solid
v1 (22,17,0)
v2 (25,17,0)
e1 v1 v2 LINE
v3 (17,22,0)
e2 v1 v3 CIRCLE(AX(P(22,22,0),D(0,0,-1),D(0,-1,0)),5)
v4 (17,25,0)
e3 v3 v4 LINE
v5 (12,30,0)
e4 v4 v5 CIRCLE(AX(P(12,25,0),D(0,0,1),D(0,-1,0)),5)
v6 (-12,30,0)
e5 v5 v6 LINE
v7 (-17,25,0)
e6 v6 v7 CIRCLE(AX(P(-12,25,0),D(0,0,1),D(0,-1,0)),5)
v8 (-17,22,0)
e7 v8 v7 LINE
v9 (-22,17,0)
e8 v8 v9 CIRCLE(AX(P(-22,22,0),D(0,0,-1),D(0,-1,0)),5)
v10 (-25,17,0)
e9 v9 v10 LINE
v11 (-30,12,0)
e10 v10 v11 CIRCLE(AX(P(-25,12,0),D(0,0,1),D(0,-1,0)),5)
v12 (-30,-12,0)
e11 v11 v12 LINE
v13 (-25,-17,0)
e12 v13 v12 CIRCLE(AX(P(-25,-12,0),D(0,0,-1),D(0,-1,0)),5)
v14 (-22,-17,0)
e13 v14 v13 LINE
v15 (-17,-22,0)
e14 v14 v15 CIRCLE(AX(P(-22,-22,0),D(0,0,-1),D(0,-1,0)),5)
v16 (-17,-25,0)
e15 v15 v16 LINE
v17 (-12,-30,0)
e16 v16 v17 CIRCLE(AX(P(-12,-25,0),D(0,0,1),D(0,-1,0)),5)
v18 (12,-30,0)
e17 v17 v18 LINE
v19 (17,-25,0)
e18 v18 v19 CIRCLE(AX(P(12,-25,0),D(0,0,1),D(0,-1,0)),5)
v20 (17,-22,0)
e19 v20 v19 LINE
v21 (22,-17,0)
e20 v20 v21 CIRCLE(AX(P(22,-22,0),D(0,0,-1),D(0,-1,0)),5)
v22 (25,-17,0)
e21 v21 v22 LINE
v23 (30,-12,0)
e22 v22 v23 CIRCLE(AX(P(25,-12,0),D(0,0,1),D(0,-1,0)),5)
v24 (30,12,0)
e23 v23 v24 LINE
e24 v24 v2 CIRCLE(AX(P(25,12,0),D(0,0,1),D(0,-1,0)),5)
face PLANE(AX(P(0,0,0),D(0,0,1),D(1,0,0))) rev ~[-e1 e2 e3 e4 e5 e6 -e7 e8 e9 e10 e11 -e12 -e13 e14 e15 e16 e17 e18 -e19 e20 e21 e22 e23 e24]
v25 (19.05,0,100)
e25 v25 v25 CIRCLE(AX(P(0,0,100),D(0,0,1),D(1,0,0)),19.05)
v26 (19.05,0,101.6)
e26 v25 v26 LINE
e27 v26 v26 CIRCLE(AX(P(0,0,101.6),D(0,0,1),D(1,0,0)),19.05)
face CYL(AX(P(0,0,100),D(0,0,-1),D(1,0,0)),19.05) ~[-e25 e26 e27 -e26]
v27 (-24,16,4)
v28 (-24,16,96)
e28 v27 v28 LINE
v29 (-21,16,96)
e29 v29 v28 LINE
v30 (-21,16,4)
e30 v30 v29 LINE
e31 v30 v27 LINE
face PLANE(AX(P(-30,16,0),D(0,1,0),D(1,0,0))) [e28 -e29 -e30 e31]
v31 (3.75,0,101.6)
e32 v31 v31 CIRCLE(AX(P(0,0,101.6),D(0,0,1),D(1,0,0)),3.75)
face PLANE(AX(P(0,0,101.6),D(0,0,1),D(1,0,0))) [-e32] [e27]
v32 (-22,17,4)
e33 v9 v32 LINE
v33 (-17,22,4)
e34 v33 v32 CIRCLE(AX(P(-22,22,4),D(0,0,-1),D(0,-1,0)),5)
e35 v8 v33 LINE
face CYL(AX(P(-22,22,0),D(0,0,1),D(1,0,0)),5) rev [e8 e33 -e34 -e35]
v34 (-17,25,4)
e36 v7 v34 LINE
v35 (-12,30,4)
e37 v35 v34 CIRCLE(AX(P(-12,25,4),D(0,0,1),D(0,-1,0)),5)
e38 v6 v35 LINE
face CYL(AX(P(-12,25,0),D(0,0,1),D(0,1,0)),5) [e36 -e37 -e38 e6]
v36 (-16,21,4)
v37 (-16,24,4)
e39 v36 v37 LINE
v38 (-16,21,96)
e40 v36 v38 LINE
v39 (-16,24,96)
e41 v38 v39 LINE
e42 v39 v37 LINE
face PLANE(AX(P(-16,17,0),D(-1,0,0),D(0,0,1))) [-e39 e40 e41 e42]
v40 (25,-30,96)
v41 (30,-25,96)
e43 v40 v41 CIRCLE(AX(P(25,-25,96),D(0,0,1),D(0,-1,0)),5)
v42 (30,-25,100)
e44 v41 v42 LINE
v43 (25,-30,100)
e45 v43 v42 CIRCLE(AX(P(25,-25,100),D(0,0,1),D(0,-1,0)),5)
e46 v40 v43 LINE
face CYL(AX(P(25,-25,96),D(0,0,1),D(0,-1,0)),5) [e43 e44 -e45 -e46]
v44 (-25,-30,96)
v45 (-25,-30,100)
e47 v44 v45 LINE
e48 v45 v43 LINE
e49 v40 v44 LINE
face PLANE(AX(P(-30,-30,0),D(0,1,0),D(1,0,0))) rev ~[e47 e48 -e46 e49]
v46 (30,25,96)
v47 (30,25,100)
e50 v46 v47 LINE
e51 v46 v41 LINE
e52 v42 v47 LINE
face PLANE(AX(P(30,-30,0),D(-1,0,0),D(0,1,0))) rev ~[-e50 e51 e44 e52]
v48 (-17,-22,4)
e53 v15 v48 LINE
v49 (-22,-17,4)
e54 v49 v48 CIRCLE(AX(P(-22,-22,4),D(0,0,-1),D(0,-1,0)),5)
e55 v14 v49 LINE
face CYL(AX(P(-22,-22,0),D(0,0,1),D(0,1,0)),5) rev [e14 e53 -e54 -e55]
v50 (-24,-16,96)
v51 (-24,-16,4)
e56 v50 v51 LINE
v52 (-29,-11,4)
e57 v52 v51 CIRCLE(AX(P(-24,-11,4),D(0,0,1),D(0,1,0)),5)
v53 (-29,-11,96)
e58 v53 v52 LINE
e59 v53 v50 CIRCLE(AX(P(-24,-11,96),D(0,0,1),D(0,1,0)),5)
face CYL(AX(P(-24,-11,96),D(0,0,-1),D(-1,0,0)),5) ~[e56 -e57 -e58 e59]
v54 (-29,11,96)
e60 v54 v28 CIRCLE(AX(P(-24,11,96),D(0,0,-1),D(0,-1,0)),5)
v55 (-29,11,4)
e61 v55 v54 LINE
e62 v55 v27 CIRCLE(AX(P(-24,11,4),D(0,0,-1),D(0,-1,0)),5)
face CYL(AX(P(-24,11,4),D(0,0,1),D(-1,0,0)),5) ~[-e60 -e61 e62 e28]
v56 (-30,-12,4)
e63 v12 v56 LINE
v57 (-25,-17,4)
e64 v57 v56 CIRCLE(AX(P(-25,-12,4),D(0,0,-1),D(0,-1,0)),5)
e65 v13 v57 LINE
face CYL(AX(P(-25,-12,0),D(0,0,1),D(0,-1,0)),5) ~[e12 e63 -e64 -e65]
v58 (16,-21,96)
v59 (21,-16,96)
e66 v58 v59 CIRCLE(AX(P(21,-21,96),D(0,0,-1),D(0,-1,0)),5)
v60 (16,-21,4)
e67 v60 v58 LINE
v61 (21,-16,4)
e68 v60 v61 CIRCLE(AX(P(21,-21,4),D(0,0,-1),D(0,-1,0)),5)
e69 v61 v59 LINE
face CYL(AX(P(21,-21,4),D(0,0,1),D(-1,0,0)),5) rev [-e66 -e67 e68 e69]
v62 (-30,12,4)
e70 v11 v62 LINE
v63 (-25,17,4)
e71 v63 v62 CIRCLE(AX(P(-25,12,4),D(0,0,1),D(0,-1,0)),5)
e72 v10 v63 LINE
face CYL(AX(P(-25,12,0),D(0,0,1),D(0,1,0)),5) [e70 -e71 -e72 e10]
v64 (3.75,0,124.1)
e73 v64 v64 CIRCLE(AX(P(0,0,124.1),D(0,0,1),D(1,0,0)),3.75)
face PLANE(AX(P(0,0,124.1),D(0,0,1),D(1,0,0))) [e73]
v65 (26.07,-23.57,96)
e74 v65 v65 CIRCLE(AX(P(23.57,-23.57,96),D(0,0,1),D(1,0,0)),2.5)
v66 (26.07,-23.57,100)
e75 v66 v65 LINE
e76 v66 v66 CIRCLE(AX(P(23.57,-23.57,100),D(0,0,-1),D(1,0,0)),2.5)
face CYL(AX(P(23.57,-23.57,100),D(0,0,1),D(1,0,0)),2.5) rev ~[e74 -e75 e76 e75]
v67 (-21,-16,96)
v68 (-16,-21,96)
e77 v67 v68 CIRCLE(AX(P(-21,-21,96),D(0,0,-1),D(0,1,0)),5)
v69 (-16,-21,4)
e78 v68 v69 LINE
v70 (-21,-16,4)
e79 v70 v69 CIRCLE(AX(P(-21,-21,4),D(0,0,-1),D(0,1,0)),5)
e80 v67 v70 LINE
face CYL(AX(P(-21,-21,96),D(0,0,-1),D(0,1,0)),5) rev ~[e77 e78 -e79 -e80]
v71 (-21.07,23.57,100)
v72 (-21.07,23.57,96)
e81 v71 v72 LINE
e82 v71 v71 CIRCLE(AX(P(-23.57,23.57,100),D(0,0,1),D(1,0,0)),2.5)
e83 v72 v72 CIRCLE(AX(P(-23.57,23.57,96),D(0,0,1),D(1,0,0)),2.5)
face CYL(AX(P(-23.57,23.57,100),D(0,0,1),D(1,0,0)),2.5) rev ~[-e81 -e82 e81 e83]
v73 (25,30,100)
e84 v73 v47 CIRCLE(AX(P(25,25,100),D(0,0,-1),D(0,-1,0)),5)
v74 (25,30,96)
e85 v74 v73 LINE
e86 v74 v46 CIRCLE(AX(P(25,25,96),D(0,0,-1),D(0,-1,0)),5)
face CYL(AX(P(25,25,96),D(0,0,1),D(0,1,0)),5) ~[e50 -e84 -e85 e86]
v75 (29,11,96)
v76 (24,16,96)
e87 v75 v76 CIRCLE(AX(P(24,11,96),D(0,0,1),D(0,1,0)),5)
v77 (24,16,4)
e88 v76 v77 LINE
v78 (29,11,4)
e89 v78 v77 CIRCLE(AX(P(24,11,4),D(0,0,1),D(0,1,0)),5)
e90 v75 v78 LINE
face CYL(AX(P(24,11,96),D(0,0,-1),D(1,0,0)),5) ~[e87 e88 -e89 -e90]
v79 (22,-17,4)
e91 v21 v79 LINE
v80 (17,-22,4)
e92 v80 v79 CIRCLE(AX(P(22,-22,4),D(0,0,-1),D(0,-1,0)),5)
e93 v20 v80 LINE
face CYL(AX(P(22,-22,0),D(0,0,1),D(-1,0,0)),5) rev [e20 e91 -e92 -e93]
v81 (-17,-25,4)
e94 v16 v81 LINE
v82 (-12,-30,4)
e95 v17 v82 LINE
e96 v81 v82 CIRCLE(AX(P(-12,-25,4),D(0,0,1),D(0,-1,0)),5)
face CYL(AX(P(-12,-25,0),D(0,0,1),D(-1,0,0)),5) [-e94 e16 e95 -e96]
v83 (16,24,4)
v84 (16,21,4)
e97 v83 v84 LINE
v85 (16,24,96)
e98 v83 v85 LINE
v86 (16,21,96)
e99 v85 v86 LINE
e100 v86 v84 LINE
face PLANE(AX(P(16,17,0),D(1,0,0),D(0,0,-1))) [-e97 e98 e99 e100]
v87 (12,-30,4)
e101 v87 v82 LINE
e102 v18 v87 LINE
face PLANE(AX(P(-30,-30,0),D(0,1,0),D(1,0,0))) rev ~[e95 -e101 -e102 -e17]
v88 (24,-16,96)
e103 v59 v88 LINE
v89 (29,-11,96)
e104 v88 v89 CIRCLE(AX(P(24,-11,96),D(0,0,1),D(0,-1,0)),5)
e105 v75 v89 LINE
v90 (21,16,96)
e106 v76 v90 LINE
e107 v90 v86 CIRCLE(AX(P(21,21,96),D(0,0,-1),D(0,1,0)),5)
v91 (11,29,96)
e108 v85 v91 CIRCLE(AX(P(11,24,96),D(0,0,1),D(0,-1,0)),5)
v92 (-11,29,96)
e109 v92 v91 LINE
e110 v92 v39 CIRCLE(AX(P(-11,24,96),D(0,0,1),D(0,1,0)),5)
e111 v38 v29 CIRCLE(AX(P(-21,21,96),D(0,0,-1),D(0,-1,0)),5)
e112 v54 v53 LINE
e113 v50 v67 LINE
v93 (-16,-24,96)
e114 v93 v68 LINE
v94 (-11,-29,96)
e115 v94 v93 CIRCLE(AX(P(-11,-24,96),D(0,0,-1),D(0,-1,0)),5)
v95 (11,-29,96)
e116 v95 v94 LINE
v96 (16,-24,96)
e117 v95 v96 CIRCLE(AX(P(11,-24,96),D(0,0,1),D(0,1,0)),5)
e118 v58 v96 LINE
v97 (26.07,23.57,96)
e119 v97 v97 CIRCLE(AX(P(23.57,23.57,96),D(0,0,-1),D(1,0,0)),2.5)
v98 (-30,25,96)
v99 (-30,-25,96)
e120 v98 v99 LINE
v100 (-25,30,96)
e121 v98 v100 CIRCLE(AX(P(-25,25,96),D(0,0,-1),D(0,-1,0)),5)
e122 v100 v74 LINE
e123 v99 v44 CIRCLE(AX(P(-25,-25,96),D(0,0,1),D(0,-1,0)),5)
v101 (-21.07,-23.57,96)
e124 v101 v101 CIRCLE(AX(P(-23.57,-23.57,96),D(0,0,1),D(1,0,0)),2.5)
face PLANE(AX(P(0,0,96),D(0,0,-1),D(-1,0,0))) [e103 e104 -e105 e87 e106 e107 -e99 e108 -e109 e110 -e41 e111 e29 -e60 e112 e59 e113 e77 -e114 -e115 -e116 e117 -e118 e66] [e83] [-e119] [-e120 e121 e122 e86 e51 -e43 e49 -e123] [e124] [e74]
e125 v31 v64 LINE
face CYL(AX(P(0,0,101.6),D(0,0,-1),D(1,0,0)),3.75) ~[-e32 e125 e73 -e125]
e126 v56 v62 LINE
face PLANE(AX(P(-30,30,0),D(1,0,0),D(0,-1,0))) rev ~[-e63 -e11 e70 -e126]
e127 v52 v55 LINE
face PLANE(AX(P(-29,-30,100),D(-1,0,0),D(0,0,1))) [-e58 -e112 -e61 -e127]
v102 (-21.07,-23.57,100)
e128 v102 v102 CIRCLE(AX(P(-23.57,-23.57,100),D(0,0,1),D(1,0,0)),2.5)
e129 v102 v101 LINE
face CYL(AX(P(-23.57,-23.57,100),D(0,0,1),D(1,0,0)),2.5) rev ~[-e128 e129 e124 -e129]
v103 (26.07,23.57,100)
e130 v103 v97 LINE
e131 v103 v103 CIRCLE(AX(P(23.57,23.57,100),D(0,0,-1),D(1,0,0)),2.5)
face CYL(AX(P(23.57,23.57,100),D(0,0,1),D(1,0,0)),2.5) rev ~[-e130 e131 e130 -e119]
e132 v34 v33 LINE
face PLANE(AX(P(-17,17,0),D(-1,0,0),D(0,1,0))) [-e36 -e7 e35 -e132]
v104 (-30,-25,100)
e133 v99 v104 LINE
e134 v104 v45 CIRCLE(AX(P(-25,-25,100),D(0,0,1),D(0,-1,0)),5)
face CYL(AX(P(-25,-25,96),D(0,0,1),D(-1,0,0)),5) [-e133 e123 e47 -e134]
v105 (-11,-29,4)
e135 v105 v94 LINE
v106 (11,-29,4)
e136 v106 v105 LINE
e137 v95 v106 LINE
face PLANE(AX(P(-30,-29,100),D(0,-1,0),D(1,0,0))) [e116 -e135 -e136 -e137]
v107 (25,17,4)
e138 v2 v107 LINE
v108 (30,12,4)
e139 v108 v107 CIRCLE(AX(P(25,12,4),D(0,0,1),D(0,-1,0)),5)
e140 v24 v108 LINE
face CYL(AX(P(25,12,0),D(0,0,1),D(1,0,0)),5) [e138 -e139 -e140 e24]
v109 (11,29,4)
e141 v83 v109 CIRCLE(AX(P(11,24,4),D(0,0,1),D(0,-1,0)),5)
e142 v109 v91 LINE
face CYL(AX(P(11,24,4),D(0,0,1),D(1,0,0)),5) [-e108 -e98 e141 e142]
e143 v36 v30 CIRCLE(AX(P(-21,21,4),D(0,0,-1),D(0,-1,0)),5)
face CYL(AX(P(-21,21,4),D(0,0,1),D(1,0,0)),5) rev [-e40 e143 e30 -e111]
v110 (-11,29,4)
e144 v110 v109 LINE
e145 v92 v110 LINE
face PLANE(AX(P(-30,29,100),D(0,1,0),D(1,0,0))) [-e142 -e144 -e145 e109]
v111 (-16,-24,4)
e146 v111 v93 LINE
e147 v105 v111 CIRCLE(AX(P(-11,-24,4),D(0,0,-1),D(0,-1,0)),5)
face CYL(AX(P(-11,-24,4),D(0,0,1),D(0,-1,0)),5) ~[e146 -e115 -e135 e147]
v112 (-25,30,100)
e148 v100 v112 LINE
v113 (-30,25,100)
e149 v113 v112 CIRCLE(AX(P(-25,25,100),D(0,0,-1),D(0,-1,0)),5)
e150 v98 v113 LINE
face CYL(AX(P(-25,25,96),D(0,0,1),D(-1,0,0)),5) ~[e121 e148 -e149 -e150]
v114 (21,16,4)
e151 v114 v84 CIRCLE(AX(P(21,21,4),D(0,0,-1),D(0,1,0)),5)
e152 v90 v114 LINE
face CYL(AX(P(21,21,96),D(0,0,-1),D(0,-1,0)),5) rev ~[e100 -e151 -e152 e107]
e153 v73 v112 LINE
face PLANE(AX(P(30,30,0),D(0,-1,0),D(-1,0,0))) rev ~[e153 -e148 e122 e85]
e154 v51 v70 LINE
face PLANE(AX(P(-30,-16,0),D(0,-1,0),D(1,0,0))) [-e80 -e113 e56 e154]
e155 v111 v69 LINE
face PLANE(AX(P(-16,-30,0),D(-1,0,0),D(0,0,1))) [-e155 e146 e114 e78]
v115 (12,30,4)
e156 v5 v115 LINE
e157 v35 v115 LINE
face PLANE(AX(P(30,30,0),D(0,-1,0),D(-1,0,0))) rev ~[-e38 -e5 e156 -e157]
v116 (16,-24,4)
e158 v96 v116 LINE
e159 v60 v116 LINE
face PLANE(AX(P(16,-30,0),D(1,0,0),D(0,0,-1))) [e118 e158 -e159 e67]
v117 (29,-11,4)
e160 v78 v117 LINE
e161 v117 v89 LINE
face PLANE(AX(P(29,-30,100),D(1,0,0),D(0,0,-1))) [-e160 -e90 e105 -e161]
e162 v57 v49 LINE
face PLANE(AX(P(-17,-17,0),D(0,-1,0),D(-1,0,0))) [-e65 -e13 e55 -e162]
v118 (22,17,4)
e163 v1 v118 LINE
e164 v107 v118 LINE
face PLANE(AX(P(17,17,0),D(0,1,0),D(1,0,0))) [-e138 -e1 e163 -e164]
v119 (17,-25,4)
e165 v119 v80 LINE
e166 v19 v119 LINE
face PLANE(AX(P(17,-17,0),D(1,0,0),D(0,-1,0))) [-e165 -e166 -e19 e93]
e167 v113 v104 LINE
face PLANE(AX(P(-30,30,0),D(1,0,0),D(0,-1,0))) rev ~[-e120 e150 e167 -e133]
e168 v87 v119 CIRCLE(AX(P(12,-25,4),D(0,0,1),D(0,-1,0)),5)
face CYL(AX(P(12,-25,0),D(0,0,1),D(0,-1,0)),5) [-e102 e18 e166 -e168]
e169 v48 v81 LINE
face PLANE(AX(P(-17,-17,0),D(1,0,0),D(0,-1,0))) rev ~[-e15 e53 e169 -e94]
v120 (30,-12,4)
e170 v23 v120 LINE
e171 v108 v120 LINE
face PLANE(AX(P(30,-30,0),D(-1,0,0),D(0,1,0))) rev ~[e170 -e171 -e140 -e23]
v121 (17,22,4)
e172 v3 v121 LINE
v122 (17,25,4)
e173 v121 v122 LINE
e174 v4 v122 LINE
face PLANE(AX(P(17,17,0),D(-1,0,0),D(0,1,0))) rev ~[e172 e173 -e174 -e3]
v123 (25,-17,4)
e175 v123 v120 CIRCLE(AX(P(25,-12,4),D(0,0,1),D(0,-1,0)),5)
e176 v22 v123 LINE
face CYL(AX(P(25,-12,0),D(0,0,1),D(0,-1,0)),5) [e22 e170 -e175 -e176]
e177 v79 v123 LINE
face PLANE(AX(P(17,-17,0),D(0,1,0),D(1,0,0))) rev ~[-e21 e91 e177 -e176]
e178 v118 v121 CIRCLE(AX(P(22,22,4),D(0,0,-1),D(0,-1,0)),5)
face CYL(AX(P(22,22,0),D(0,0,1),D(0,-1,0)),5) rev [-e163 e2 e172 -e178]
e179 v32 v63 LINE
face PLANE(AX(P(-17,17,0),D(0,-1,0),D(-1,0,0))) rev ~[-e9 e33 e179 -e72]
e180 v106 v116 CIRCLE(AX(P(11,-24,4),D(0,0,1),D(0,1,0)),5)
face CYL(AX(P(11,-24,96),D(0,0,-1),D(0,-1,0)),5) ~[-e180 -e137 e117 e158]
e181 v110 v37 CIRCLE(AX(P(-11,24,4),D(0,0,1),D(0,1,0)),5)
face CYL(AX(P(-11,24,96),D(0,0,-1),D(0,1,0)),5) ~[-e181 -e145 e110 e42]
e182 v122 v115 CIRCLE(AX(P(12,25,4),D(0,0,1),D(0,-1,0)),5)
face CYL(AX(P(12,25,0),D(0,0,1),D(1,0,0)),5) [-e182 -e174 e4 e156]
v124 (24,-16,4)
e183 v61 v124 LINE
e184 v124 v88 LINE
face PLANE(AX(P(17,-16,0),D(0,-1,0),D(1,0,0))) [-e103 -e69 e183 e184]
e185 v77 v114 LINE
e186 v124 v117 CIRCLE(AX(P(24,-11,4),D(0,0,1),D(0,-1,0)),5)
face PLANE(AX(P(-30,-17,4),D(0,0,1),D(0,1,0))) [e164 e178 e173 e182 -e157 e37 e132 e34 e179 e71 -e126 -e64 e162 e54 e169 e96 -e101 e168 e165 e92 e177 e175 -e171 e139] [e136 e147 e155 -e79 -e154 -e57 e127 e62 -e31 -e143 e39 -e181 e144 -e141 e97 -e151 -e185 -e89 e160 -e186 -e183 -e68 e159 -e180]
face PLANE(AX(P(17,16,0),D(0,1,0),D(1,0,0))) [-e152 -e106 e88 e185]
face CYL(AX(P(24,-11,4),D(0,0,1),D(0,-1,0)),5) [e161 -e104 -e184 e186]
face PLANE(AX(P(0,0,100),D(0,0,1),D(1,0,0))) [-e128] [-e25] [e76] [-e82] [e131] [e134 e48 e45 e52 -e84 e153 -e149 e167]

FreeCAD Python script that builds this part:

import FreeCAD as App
import Part
import Sketcher
from FreeCAD import Vector
Q = App.Units.Quantity


def edges_at(feature, points):
    """Names of the edges that pass closest to the given points."""
    edges = feature.Shape.Edges
    near = lambda p: min(range(len(edges)), key=lambda i: edges[i].distToShape(Part.Vertex(*p))[0])
    return sorted({f"Edge{near(p) + 1}" for p in points})

doc = App.newDocument("Part")
body = doc.addObject("PartDesign::Body", "Body")

# Sketch on XY plane
sketch1 = body.newObject("Sketcher::SketchObject", "Sketch")
sketch1.AttachmentSupport = (doc.getObject("XY_Plane"), [""])
sketch1.MapMode = "FlatFace"
sketch1.addGeometry([
    Part.LineSegment(Vector(-30, 30, 0), Vector(-30, -30, 0)),
    Part.LineSegment(Vector(-30, -30, 0), Vector(30, -30, 0)),
    Part.LineSegment(Vector(30, -30, 0), Vector(30, 30, 0)),
    Part.LineSegment(Vector(30, 30, 0), Vector(-30, 30, 0)),
], False)
sketch1.addConstraint([
    Sketcher.Constraint("Coincident", 0, 2, 1, 1),
    Sketcher.Constraint("Coincident", 1, 2, 2, 1),
    Sketcher.Constraint("Coincident", 2, 2, 3, 1),
    Sketcher.Constraint("Coincident", 3, 2, 0, 1),
    Sketcher.Constraint("Vertical", 0),
    Sketcher.Constraint("Horizontal", 1),
    Sketcher.Constraint("Vertical", 2),
    Sketcher.Constraint("Horizontal", 3),
    Sketcher.Constraint("Symmetric", 0, 2, 2, 2, -1, 1),
    Sketcher.Constraint("Equal", 3, 0),
    Sketcher.Constraint("DistanceX", 1, 1, 1, 2, Q("60 mm")),
])
pad1 = body.newObject("PartDesign::Pad", "Pad")
pad1.Profile = sketch1
pad1.Length = 100

# Sketch on XY plane
sketch2 = body.newObject("Sketcher::SketchObject", "Sketch001")
sketch2.AttachmentSupport = (doc.getObject("XY_Plane"), [""])
sketch2.MapMode = "FlatFace"
sketch2.AttachmentOffset = App.Placement(Vector(0, 0, 100), App.Rotation())
sketch2.addGeometry(Part.Circle(Vector(0, 0, 0), Vector(0, 0, 1), 19), False)
sketch2.addConstraint([
    Sketcher.Constraint("Coincident", 0, 3, -1, 1),
    Sketcher.Constraint("Diameter", 0, Q("38.1 mm")),
])
pad2 = body.newObject("PartDesign::Pad", "Pad001")
pad2.Profile = sketch2
pad2.Length = 1.6

# Sketch on XY plane
sketch3 = body.newObject("Sketcher::SketchObject", "Sketch002")
sketch3.AttachmentSupport = (doc.getObject("XY_Plane"), [""])
sketch3.MapMode = "FlatFace"
sketch3.AttachmentOffset = App.Placement(Vector(0, 0, 100), App.Rotation())
sketch3.addGeometry([
    Part.Circle(Vector(-23.6, 23.6, 0), Vector(0, 0, 1), 2.5),
    Part.Circle(Vector(23.6, 23.6, 0), Vector(0, 0, 1), 2.5),
    Part.Circle(Vector(23.6, -23.6, 0), Vector(0, 0, 1), 2.5),
    Part.Circle(Vector(-23.6, -23.6, 0), Vector(0, 0, 1), 2.5),
], False)
sketch3.addConstraint([
    Sketcher.Constraint("Equal", 0, 1),
    Sketcher.Constraint("Equal", 1, 2),
    Sketcher.Constraint("Equal", 2, 3),
    Sketcher.Constraint("Symmetric", 0, 3, 2, 3, -1, 1),
    Sketcher.Constraint("Symmetric", 1, 3, 3, 3, -1, 1),
    Sketcher.Constraint("Symmetric", 0, 3, 1, 3, -2),
    Sketcher.Constraint("Diameter", 0, Q("5 mm")),
    Sketcher.Constraint("DistanceX", 0, 3, 1, 3, Q("47.14 mm")),
    Sketcher.Constraint("DistanceY", 2, 3, 1, 3, Q("47.14 mm")),
])
pocket1 = body.newObject("PartDesign::Pocket", "Pocket")
pocket1.Profile = sketch3
pocket1.Type = "UpToFirst"

# Sketch on XY plane
sketch4 = body.newObject("Sketcher::SketchObject", "Sketch003")
sketch4.AttachmentSupport = (doc.getObject("XY_Plane"), [""])
sketch4.MapMode = "FlatFace"
sketch4.addGeometry([
    Part.LineSegment(Vector(-17, -30, 0), Vector(-30, -30, 0)),  # 0
    Part.LineSegment(Vector(-30, -30, 0), Vector(-30, -17, 0)),  # 1
    Part.LineSegment(Vector(-30, -17, 0), Vector(-17, -17, 0)),  # 2
    Part.LineSegment(Vector(-17, -17, 0), Vector(-17, -30, 0)),  # 3
    Part.Circle(Vector(-23.6, -23.6, 0), Vector(0, 0, 1), 2.5),  # 4
    Part.LineSegment(Vector(30, -30, 0), Vector(17, -30, 0)),  # 5
    Part.LineSegment(Vector(17, -30, 0), Vector(17, -17, 0)),  # 6
    Part.LineSegment(Vector(17, -17, 0), Vector(30, -17, 0)),  # 7
    Part.LineSegment(Vector(30, -17, 0), Vector(30, -30, 0)),  # 8
    Part.Circle(Vector(23.6, -23.6, 0), Vector(0, 0, 1), 2.5),  # 9
    Part.LineSegment(Vector(-17, 17, 0), Vector(-30, 17, 0)),  # 10
    Part.LineSegment(Vector(-30, 17, 0), Vector(-30, 30, 0)),  # 11
    Part.LineSegment(Vector(-30, 30, 0), Vector(-17, 30, 0)),  # 12
    Part.LineSegment(Vector(-17, 30, 0), Vector(-17, 17, 0)),  # 13
    Part.Circle(Vector(-23.6, 23.6, 0), Vector(0, 0, 1), 2.5),  # 14
    Part.LineSegment(Vector(30, 30, 0), Vector(30, 17, 0)),  # 15
    Part.LineSegment(Vector(30, 17, 0), Vector(17, 17, 0)),  # 16
    Part.LineSegment(Vector(17, 17, 0), Vector(17, 30, 0)),  # 17
    Part.LineSegment(Vector(17, 30, 0), Vector(30, 30, 0)),  # 18
    Part.Circle(Vector(23.6, 23.6, 0), Vector(0, 0, 1), 2.5),  # 19
], False)
sketch4.addConstraint([
    Sketcher.Constraint("Coincident", 0, 2, 1, 1),
    Sketcher.Constraint("Coincident", 1, 2, 2, 1),
    Sketcher.Constraint("Coincident", 2, 2, 3, 1),
    Sketcher.Constraint("Coincident", 3, 2, 0, 1),
    Sketcher.Constraint("Coincident", 5, 2, 6, 1),
    Sketcher.Constraint("Coincident", 6, 2, 7, 1),
    Sketcher.Constraint("Coincident", 7, 2, 8, 1),
    Sketcher.Constraint("Coincident", 8, 2, 5, 1),
    Sketcher.Constraint("Coincident", 10, 2, 11, 1),
    Sketcher.Constraint("Coincident", 11, 2, 12, 1),
    Sketcher.Constraint("Coincident", 12, 2, 13, 1),
    Sketcher.Constraint("Coincident", 13, 2, 10, 1),
    Sketcher.Constraint("Coincident", 15, 2, 16, 1),
    Sketcher.Constraint("Coincident", 16, 2, 17, 1),
    Sketcher.Constraint("Coincident", 17, 2, 18, 1),
    Sketcher.Constraint("Coincident", 18, 2, 15, 1),
    Sketcher.Constraint("Horizontal", 0),
    Sketcher.Constraint("Vertical", 1),
    Sketcher.Constraint("Horizontal", 2),
    Sketcher.Constraint("Vertical", 3),
    Sketcher.Constraint("Horizontal", 5),
    Sketcher.Constraint("Vertical", 6),
    Sketcher.Constraint("Horizontal", 7),
    Sketcher.Constraint("Vertical", 8),
    Sketcher.Constraint("Horizontal", 10),
    Sketcher.Constraint("Vertical", 11),
    Sketcher.Constraint("Horizontal", 12),
    Sketcher.Constraint("Vertical", 13),
    Sketcher.Constraint("Vertical", 15),
    Sketcher.Constraint("Horizontal", 16),
    Sketcher.Constraint("Vertical", 17),
    Sketcher.Constraint("Horizontal", 18),
    Sketcher.Constraint("Equal", 4, 9),
    Sketcher.Constraint("Equal", 9, 14),
    Sketcher.Constraint("Equal", 14, 19),
    Sketcher.Constraint("Symmetric", 9, 3, 14, 3, -1, 1),
    Sketcher.Constraint("Symmetric", 4, 3, 19, 3, -1, 1),
    Sketcher.Constraint("Symmetric", 7, 2, 10, 2, -1, 1),
    Sketcher.Constraint("Symmetric", 5, 2, 12, 2, -1, 1),
    Sketcher.Constraint("Symmetric", 1, 2, 15, 2, -1, 1),
    Sketcher.Constraint("Symmetric", 3, 2, 17, 2, -1, 1),
    Sketcher.Constraint("Symmetric", 4, 3, 9, 3, -2),
    Sketcher.Constraint("Symmetric", 3, 2, 5, 2, -2),
    Sketcher.Constraint("Symmetric", 1, 2, 7, 2, -2),
    Sketcher.Constraint("Equal", 18, 1),
    Sketcher.Constraint("Diameter", 4, Q("5 mm")),
    Sketcher.Constraint("DistanceX", 0, 2, 0, 1, Q("13 mm")),
    Sketcher.Constraint("DistanceX", 0, 2, -1, 1, Q("30 mm")),
    Sketcher.Constraint("DistanceY", 0, 2, -1, 1, Q("30 mm")),
    Sketcher.Constraint("DistanceX", 4, 3, -1, 1, Q("23.57 mm")),
    Sketcher.Constraint("DistanceY", 4, 3, -1, 1, Q("23.57 mm")),
])
pocket2 = body.newObject("PartDesign::Pocket", "Pocket001")
pocket2.Profile = sketch4
pocket2.Length = 96
pocket2.Reversed = True

# Sketch on XY plane
sketch5 = body.newObject("Sketcher::SketchObject", "Sketch004")
sketch5.AttachmentSupport = (doc.getObject("XY_Plane"), [""])
sketch5.MapMode = "FlatFace"
sketch5.AttachmentOffset = App.Placement(Vector(0, 0, 101.6), App.Rotation())
sketch5.addGeometry(Part.Circle(Vector(0, 0, 0), Vector(0, 0, 1), 3.8), False)
sketch5.addConstraint([
    Sketcher.Constraint("Coincident", 0, 3, -1, 1),
    Sketcher.Constraint("Diameter", 0, Q("7.5 mm")),
])
pad3 = body.newObject("PartDesign::Pad", "Pad002")
pad3.Profile = sketch5
pad3.Length = 22.5

# Sketch on XZ plane
sketch6 = body.newObject("Sketcher::SketchObject", "Sketch005")
sketch6.AttachmentSupport = (doc.getObject("XZ_Plane"), [""])
sketch6.MapMode = "FlatFace"
sketch6.AttachmentOffset = App.Placement(Vector(0, 0, -30), App.Rotation())
sketch6.addGeometry([
    Part.LineSegment(Vector(17, 4, 0), Vector(-17, 4, 0)),
    Part.LineSegment(Vector(-17, 4, 0), Vector(-17, 96, 0)),
    Part.LineSegment(Vector(-17, 96, 0), Vector(17, 96, 0)),
    Part.LineSegment(Vector(17, 96, 0), Vector(17, 4, 0)),
], False)
sketch6.addConstraint([
    Sketcher.Constraint("Coincident", 0, 2, 1, 1),
    Sketcher.Constraint("Coincident", 1, 2, 2, 1),
    Sketcher.Constraint("Coincident", 2, 2, 3, 1),
    Sketcher.Constraint("Coincident", 3, 2, 0, 1),
    Sketcher.Constraint("Horizontal", 0),
    Sketcher.Constraint("Vertical", 1),
    Sketcher.Constraint("Horizontal", 2),
    Sketcher.Constraint("Vertical", 3),
    Sketcher.Constraint("DistanceY", -1, 1, 0, 2, Q("4 mm")),
    Sketcher.Constraint("DistanceX", 0, 2, 0, 1, Q("34 mm")),
    Sketcher.Constraint("DistanceY", 1, 1, 1, 2, Q("92 mm")),
    Sketcher.Constraint("DistanceX", 0, 2, -1, 1, Q("17 mm")),
])
pocket3 = body.newObject("PartDesign::Pocket", "Pocket002")
pocket3.Profile = sketch6
pocket3.Length = 1
pocket3.Reversed = True

# Sketch on XZ plane
sketch7 = body.newObject("Sketcher::SketchObject", "Sketch006")
sketch7.AttachmentSupport = (doc.getObject("XZ_Plane"), [""])
sketch7.MapMode = "FlatFace"
sketch7.AttachmentOffset = App.Placement(Vector(0, 0, 30), App.Rotation())
sketch7.addGeometry([
    Part.LineSegment(Vector(17, 96, 0), Vector(-17, 96, 0)),
    Part.LineSegment(Vector(-17, 96, 0), Vector(-17, 4, 0)),
    Part.LineSegment(Vector(-17, 4, 0), Vector(17, 4, 0)),
    Part.LineSegment(Vector(17, 4, 0), Vector(17, 96, 0)),
], False)
sketch7.addConstraint([
    Sketcher.Constraint("Coincident", 0, 2, 1, 1),
    Sketcher.Constraint("Coincident", 1, 2, 2, 1),
    Sketcher.Constraint("Coincident", 2, 2, 3, 1),
    Sketcher.Constraint("Coincident", 3, 2, 0, 1),
    Sketcher.Constraint("Horizontal", 0),
    Sketcher.Constraint("Vertical", 1),
    Sketcher.Constraint("Horizontal", 2),
    Sketcher.Constraint("Vertical", 3),
    Sketcher.Constraint("DistanceY", -1, 1, 1, 2, Q("4 mm")),
    Sketcher.Constraint("DistanceX", 0, 2, 0, 1, Q("34 mm")),
    Sketcher.Constraint("DistanceY", 1, 2, 1, 1, Q("92 mm")),
    Sketcher.Constraint("DistanceX", 0, 2, -1, 1, Q("17 mm")),
])
pocket4 = body.newObject("PartDesign::Pocket", "Pocket003")
pocket4.Profile = sketch7
pocket4.Length = 1

# Sketch on YZ plane
sketch8 = body.newObject("Sketcher::SketchObject", "Sketch007")
sketch8.AttachmentSupport = (doc.getObject("YZ_Plane"), [""])
sketch8.MapMode = "FlatFace"
sketch8.AttachmentOffset = App.Placement(Vector(0, 0, -30), App.Rotation())
sketch8.addGeometry([
    Part.LineSegment(Vector(-17, 96, 0), Vector(17, 96, 0)),
    Part.LineSegment(Vector(17, 96, 0), Vector(17, 4, 0)),
    Part.LineSegment(Vector(17, 4, 0), Vector(-17, 4, 0)),
    Part.LineSegment(Vector(-17, 4, 0), Vector(-17, 96, 0)),
], False)
sketch8.addConstraint([
    Sketcher.Constraint("Coincident", 0, 2, 1, 1),
    Sketcher.Constraint("Coincident", 1, 2, 2, 1),
    Sketcher.Constraint("Coincident", 2, 2, 3, 1),
    Sketcher.Constraint("Coincident", 3, 2, 0, 1),
    Sketcher.Constraint("Horizontal", 0),
    Sketcher.Constraint("Vertical", 1),
    Sketcher.Constraint("Horizontal", 2),
    Sketcher.Constraint("Vertical", 3),
    Sketcher.Constraint("DistanceX", 0, 1, 0, 2, Q("34 mm")),
    Sketcher.Constraint("DistanceY", 1, 2, 1, 1, Q("92 mm")),
    Sketcher.Constraint("DistanceX", -1, 1, 0, 2, Q("17 mm")),
    Sketcher.Constraint("DistanceY", -1, 1, 0, 2, Q("96 mm")),
])
pocket5 = body.newObject("PartDesign::Pocket", "Pocket004")
pocket5.Profile = sketch8
pocket5.Length = 1
pocket5.Reversed = True

# Sketch on YZ plane
sketch9 = body.newObject("Sketcher::SketchObject", "Sketch008")
sketch9.AttachmentSupport = (doc.getObject("YZ_Plane"), [""])
sketch9.MapMode = "FlatFace"
sketch9.AttachmentOffset = App.Placement(Vector(0, 0, 30), App.Rotation())
sketch9.addGeometry([
    Part.LineSegment(Vector(17, 96, 0), Vector(-17, 96, 0)),
    Part.LineSegment(Vector(-17, 96, 0), Vector(-17, 4, 0)),
    Part.LineSegment(Vector(-17, 4, 0), Vector(17, 4, 0)),
    Part.LineSegment(Vector(17, 4, 0), Vector(17, 96, 0)),
], False)
sketch9.addConstraint([
    Sketcher.Constraint("Coincident", 0, 2, 1, 1),
    Sketcher.Constraint("Coincident", 1, 2, 2, 1),
    Sketcher.Constraint("Coincident", 2, 2, 3, 1),
    Sketcher.Constraint("Coincident", 3, 2, 0, 1),
    Sketcher.Constraint("Horizontal", 0),
    Sketcher.Constraint("Vertical", 1),
    Sketcher.Constraint("Horizontal", 2),
    Sketcher.Constraint("Vertical", 3),
    Sketcher.Constraint("DistanceY", -1, 1, 1, 2, Q("4 mm")),
    Sketcher.Constraint("DistanceX", 0, 2, 0, 1, Q("34 mm")),
    Sketcher.Constraint("DistanceY", 1, 2, 1, 1, Q("92 mm")),
    Sketcher.Constraint("DistanceX", 0, 2, -1, 1, Q("17 mm")),
])
pocket6 = body.newObject("PartDesign::Pocket", "Pocket005")
pocket6.Profile = sketch9
pocket6.Length = 1

# Sketch on XZ plane
sketch10 = body.newObject("Sketcher::SketchObject", "Sketch009")
sketch10.AttachmentSupport = (doc.getObject("XZ_Plane"), [""])
sketch10.MapMode = "FlatFace"
sketch10.AttachmentOffset = App.Placement(Vector(0, 0, -17), App.Rotation())
sketch10.addGeometry([
    Part.LineSegment(Vector(-17, 4, 0), Vector(-29, 4, 0)),
    Part.LineSegment(Vector(-29, 4, 0), Vector(-29, 96, 0)),
    Part.LineSegment(Vector(-29, 96, 0), Vector(-17, 96, 0)),
    Part.LineSegment(Vector(-17, 96, 0), Vector(-17, 4, 0)),
], False)
sketch10.addConstraint([
    Sketcher.Constraint("Coincident", 0, 2, 1, 1),
    Sketcher.Constraint("Coincident", 1, 2, 2, 1),
    Sketcher.Constraint("Coincident", 2, 2, 3, 1),
    Sketcher.Constraint("Coincident", 3, 2, 0, 1),
    Sketcher.Constraint("Horizontal", 0),
    Sketcher.Constraint("Vertical", 1),
    Sketcher.Constraint("Horizontal", 2),
    Sketcher.Constraint("Vertical", 3),
    Sketcher.Constraint("DistanceX", 0, 2, 0, 1, Q("12 mm")),
    Sketcher.Constraint("DistanceY", 1, 1, 1, 2, Q("92 mm")),
    Sketcher.Constraint("DistanceX", 0, 2, -1, 1, Q("29 mm")),
    Sketcher.Constraint("DistanceY", -1, 1, 0, 2, Q("4 mm")),
])
pocket7 = body.newObject("PartDesign::Pocket", "Pocket006")
pocket7.Profile = sketch10
pocket7.Length = 1
pocket7.Reversed = True

# Sketch on YZ plane
sketch11 = body.newObject("Sketcher::SketchObject", "Sketch010")
sketch11.AttachmentSupport = (doc.getObject("YZ_Plane"), [""])
sketch11.MapMode = "FlatFace"
sketch11.AttachmentOffset = App.Placement(Vector(0, 0, -17), App.Rotation())
sketch11.addGeometry([
    Part.LineSegment(Vector(29, 4, 0), Vector(16, 4, 0)),
    Part.LineSegment(Vector(16, 4, 0), Vector(16, 96, 0)),
    Part.LineSegment(Vector(16, 96, 0), Vector(29, 96, 0)),
    Part.LineSegment(Vector(29, 96, 0), Vector(29, 4, 0)),
], False)
sketch11.addConstraint([
    Sketcher.Constraint("Coincident", 0, 2, 1, 1),
    Sketcher.Constraint("Coincident", 1, 2, 2, 1),
    Sketcher.Constraint("Coincident", 2, 2, 3, 1),
    Sketcher.Constraint("Coincident", 3, 2, 0, 1),
    Sketcher.Constraint("Horizontal", 0),
    Sketcher.Constraint("Vertical", 1),
    Sketcher.Constraint("Horizontal", 2),
    Sketcher.Constraint("Vertical", 3),
    Sketcher.Constraint("DistanceX", 0, 2, 0, 1, Q("13 mm")),
    Sketcher.Constraint("DistanceY", 1, 1, 1, 2, Q("92 mm")),
    Sketcher.Constraint("DistanceX", -1, 1, 0, 2, Q("16 mm")),
    Sketcher.Constraint("DistanceY", -1, 1, 0, 2, Q("4 mm")),
])
pocket8 = body.newObject("PartDesign::Pocket", "Pocket007")
pocket8.Profile = sketch11
pocket8.Length = 1
pocket8.Reversed = True

# Sketch on XZ plane
sketch12 = body.newObject("Sketcher::SketchObject", "Sketch011")
sketch12.AttachmentSupport = (doc.getObject("XZ_Plane"), [""])
sketch12.MapMode = "FlatFace"
sketch12.AttachmentOffset = App.Placement(Vector(0, 0, -17), App.Rotation())
sketch12.addGeometry([
    Part.LineSegment(Vector(17, 96, 0), Vector(29, 96, 0)),
    Part.LineSegment(Vector(29, 96, 0), Vector(29, 4, 0)),
    Part.LineSegment(Vector(29, 4, 0), Vector(17, 4, 0)),
    Part.LineSegment(Vector(17, 4, 0), Vector(17, 96, 0)),
], False)
sketch12.addConstraint([
    Sketcher.Constraint("Coincident", 0, 2, 1, 1),
    Sketcher.Constraint("Coincident", 1, 2, 2, 1),
    Sketcher.Constraint("Coincident", 2, 2, 3, 1),
    Sketcher.Constraint("Coincident", 3, 2, 0, 1),
    Sketcher.Constraint("Horizontal", 0),
    Sketcher.Constraint("Vertical", 1),
    Sketcher.Constraint("Horizontal", 2),
    Sketcher.Constraint("Vertical", 3),
    Sketcher.Constraint("DistanceX", 0, 1, 0, 2, Q("12 mm")),
    Sketcher.Constraint("DistanceY", 1, 2, 1, 1, Q("92 mm")),
    Sketcher.Constraint("DistanceX", -1, 1, 0, 2, Q("29 mm")),
    Sketcher.Constraint("DistanceY", -1, 1, 0, 2, Q("96 mm")),
])
pocket9 = body.newObject("PartDesign::Pocket", "Pocket008")
pocket9.Profile = sketch12
pocket9.Length = 1
pocket9.Reversed = True

# Sketch on YZ plane
sketch13 = body.newObject("Sketcher::SketchObject", "Sketch012")
sketch13.AttachmentSupport = (doc.getObject("YZ_Plane"), [""])
sketch13.MapMode = "FlatFace"
sketch13.AttachmentOffset = App.Placement(Vector(0, 0, 17), App.Rotation())
sketch13.addGeometry([
    Part.LineSegment(Vector(16, 4, 0), Vector(29, 4, 0)),
    Part.LineSegment(Vector(29, 4, 0), Vector(29, 96, 0)),
    Part.LineSegment(Vector(29, 96, 0), Vector(16, 96, 0)),
    Part.LineSegment(Vector(16, 96, 0), Vector(16, 4, 0)),
], False)
sketch13.addConstraint([
    Sketcher.Constraint("Coincident", 0, 2, 1, 1),
    Sketcher.Constraint("Coincident", 1, 2, 2, 1),
    Sketcher.Constraint("Coincident", 2, 2, 3, 1),
    Sketcher.Constraint("Coincident", 3, 2, 0, 1),
    Sketcher.Constraint("Horizontal", 0),
    Sketcher.Constraint("Vertical", 1),
    Sketcher.Constraint("Horizontal", 2),
    Sketcher.Constraint("Vertical", 3),
    Sketcher.Constraint("DistanceX", 0, 1, 0, 2, Q("13 mm")),
    Sketcher.Constraint("DistanceY", 1, 1, 1, 2, Q("92 mm")),
    Sketcher.Constraint("DistanceX", -1, 1, 0, 2, Q("29 mm")),
    Sketcher.Constraint("DistanceY", -1, 1, 0, 2, Q("4 mm")),
])
pocket10 = body.newObject("PartDesign::Pocket", "Pocket009")
pocket10.Profile = sketch13
pocket10.Length = 1

# Sketch on XZ plane
sketch14 = body.newObject("Sketcher::SketchObject", "Sketch013")
sketch14.AttachmentSupport = (doc.getObject("XZ_Plane"), [""])
sketch14.MapMode = "FlatFace"
sketch14.AttachmentOffset = App.Placement(Vector(0, 0, 17), App.Rotation())
sketch14.addGeometry([
    Part.LineSegment(Vector(17, 4, 0), Vector(29, 4, 0)),
    Part.LineSegment(Vector(29, 4, 0), Vector(29, 96, 0)),
    Part.LineSegment(Vector(29, 96, 0), Vector(17, 96, 0)),
    Part.LineSegment(Vector(17, 96, 0), Vector(17, 4, 0)),
], False)
sketch14.addConstraint([
    Sketcher.Constraint("Coincident", 0, 2, 1, 1),
    Sketcher.Constraint("Coincident", 1, 2, 2, 1),
    Sketcher.Constraint("Coincident", 2, 2, 3, 1),
    Sketcher.Constraint("Coincident", 3, 2, 0, 1),
    Sketcher.Constraint("Horizontal", 0),
    Sketcher.Constraint("Vertical", 1),
    Sketcher.Constraint("Horizontal", 2),
    Sketcher.Constraint("Vertical", 3),
    Sketcher.Constraint("DistanceX", 0, 1, 0, 2, Q("12 mm")),
    Sketcher.Constraint("DistanceY", 1, 1, 1, 2, Q("92 mm")),
    Sketcher.Constraint("DistanceX", -1, 1, 0, 2, Q("29 mm")),
    Sketcher.Constraint("DistanceY", -1, 1, 0, 2, Q("4 mm")),
])
pocket11 = body.newObject("PartDesign::Pocket", "Pocket010")
pocket11.Profile = sketch14
pocket11.Length = 1

# Sketch on YZ plane
sketch15 = body.newObject("Sketcher::SketchObject", "Sketch014")
sketch15.AttachmentSupport = (doc.getObject("YZ_Plane"), [""])
sketch15.MapMode = "FlatFace"
sketch15.AttachmentOffset = App.Placement(Vector(0, 0, 17), App.Rotation())
sketch15.addGeometry([
    Part.LineSegment(Vector(-16, 96, 0), Vector(-29, 96, 0)),
    Part.LineSegment(Vector(-29, 96, 0), Vector(-29, 4, 0)),
    Part.LineSegment(Vector(-29, 4, 0), Vector(-16, 4, 0)),
    Part.LineSegment(Vector(-16, 4, 0), Vector(-16, 96, 0)),
], False)
sketch15.addConstraint([
    Sketcher.Constraint("Coincident", 0, 2, 1, 1),
    Sketcher.Constraint("Coincident", 1, 2, 2, 1),
    Sketcher.Constraint("Coincident", 2, 2, 3, 1),
    Sketcher.Constraint("Coincident", 3, 2, 0, 1),
    Sketcher.Constraint("Horizontal", 0),
    Sketcher.Constraint("Vertical", 1),
    Sketcher.Constraint("Horizontal", 2),
    Sketcher.Constraint("Vertical", 3),
    Sketcher.Constraint("DistanceX", 0, 2, 0, 1, Q("13 mm")),
    Sketcher.Constraint("DistanceY", 1, 2, 1, 1, Q("92 mm")),
    Sketcher.Constraint("DistanceX", 0, 2, -1, 1, Q("29 mm")),
    Sketcher.Constraint("DistanceY", -1, 1, 0, 2, Q("96 mm")),
])
pocket12 = body.newObject("PartDesign::Pocket", "Pocket011")
pocket12.Profile = sketch15
pocket12.Length = 1

# Sketch on XZ plane
sketch16 = body.newObject("Sketcher::SketchObject", "Sketch015")
sketch16.AttachmentSupport = (doc.getObject("XZ_Plane"), [""])
sketch16.MapMode = "FlatFace"
sketch16.AttachmentOffset = App.Placement(Vector(0, 0, 17), App.Rotation())
sketch16.addGeometry([
    Part.LineSegment(Vector(-17, 96, 0), Vector(-29, 96, 0)),
    Part.LineSegment(Vector(-29, 96, 0), Vector(-29, 4, 0)),
    Part.LineSegment(Vector(-29, 4, 0), Vector(-17, 4, 0)),
    Part.LineSegment(Vector(-17, 4, 0), Vector(-17, 96, 0)),
], False)
sketch16.addConstraint([
    Sketcher.Constraint("Coincident", 0, 2, 1, 1),
    Sketcher.Constraint("Coincident", 1, 2, 2, 1),
    Sketcher.Constraint("Coincident", 2, 2, 3, 1),
    Sketcher.Constraint("Coincident", 3, 2, 0, 1),
    Sketcher.Constraint("Horizontal", 0),
    Sketcher.Constraint("Vertical", 1),
    Sketcher.Constraint("Horizontal", 2),
    Sketcher.Constraint("Vertical", 3),
    Sketcher.Constraint("DistanceX", 0, 2, 0, 1, Q("12 mm")),
    Sketcher.Constraint("DistanceY", 1, 2, 1, 1, Q("92 mm")),
    Sketcher.Constraint("DistanceX", 0, 2, -1, 1, Q("29 mm")),
    Sketcher.Constraint("DistanceY", -1, 1, 0, 2, Q("96 mm")),
])
pocket13 = body.newObject("PartDesign::Pocket", "Pocket012")
pocket13.Profile = sketch16
pocket13.Length = 1

# Sketch on YZ plane
sketch17 = body.newObject("Sketcher::SketchObject", "Sketch016")
sketch17.AttachmentSupport = (doc.getObject("YZ_Plane"), [""])
sketch17.MapMode = "FlatFace"
sketch17.AttachmentOffset = App.Placement(Vector(0, 0, -17), App.Rotation())
sketch17.addGeometry([
    Part.LineSegment(Vector(-16, 4, 0), Vector(-29, 4, 0)),
    Part.LineSegment(Vector(-29, 4, 0), Vector(-29, 96, 0)),
    Part.LineSegment(Vector(-29, 96, 0), Vector(-16, 96, 0)),
    Part.LineSegment(Vector(-16, 96, 0), Vector(-16, 4, 0)),
], False)
sketch17.addConstraint([
    Sketcher.Constraint("Coincident", 0, 2, 1, 1),
    Sketcher.Constraint("Coincident", 1, 2, 2, 1),
    Sketcher.Constraint("Coincident", 2, 2, 3, 1),
    Sketcher.Constraint("Coincident", 3, 2, 0, 1),
    Sketcher.Constraint("Horizontal", 0),
    Sketcher.Constraint("Vertical", 1),
    Sketcher.Constraint("Horizontal", 2),
    Sketcher.Constraint("Vertical", 3),
    Sketcher.Constraint("DistanceX", 0, 2, 0, 1, Q("13 mm")),
    Sketcher.Constraint("DistanceY", 1, 1, 1, 2, Q("92 mm")),
    Sketcher.Constraint("DistanceX", 0, 2, -1, 1, Q("29 mm")),
    Sketcher.Constraint("DistanceY", -1, 1, 0, 2, Q("4 mm")),
])
pocket14 = body.newObject("PartDesign::Pocket", "Pocket013")
pocket14.Profile = sketch17
pocket14.Length = 1
pocket14.Reversed = True
doc.recompute()

fillet = body.newObject("PartDesign::Fillet", "Fillet")
fillet.Base = (pocket14, edges_at(pocket14, [
    (-30, 30, 98),
    (30, 30, 98),
    (30, -30, 98),
    (-30, -30, 98),
    (-16, -16, 50),
    (-29, -16, 50),
    (-16, -29, 50),
    (16, -29, 50),
    (16, -16, 50),
    (29, -16, 50),
    (29, 16, 50),
    (16, 16, 50),
    (16, 29, 50),
    (-16, 29, 50),
    (-16, 16, 50),
    (-29, 16, 50),
    (-30, 17, 2),
    (-17, 17, 2),
    (-17, 30, 2),
    (17, 30, 2),
    (17, 17, 2),
    (30, 17, 2),
    (30, -17, 2),
    (17, -17, 2),
    (17, -30, 2),
    (-17, -30, 2),
    (-17, -17, 2),
    (-30, -17, 2),
]))
fillet.Radius = 5

doc.recompute()
